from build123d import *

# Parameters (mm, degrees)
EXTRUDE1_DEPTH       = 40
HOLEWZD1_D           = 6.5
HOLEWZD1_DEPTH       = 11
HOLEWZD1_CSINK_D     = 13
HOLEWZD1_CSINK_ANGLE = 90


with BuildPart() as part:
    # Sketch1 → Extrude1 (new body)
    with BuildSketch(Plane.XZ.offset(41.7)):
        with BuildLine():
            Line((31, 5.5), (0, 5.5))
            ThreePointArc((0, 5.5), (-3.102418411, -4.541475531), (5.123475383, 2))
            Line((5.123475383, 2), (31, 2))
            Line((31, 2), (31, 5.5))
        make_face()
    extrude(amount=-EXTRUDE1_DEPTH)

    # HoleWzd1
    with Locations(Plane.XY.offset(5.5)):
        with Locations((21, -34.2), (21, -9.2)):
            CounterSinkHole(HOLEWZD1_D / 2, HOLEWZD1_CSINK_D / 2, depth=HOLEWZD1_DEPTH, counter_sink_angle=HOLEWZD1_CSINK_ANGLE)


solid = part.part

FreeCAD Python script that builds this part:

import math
import FreeCAD as App
import Part
import Sketcher
from FreeCAD import Vector

doc = App.newDocument("Part")
params = doc.addObject("Spreadsheet::Sheet", "Params")
for row, (alias, value) in enumerate([
    ("sketch1_radius", "5.5 mm"),
    ("sketch1_width", "31 mm"),
    ("sketch1_height", "3.5 mm"),
    ("pad1_length", "40 mm"),
    ("sketch2_diameter", "6.5 mm"),
    ("hole_diameter", "6.5 mm"),
    ("hole_depth", "11 mm"),
    ("hole_csink_diameter", "13 mm"),
], start=1):
    params.set(f"A{row}", alias)
    params.set(f"B{row}", "=" + value)
    params.setAlias(f"B{row}", alias)

body = doc.addObject("PartDesign::Body", "Body")

# Sketch on XZ plane
sketch1 = doc.addObject("Sketcher::SketchObject", "Sketch")
body.addObject(sketch1)
sketch1.AttachmentSupport = (doc.XZ_Plane, [""])
sketch1.MapMode = "FlatFace"
sketch1.AttachmentOffset = App.Placement(Vector(0, 0, 41.7), App.Rotation())
sketch1.addGeometry([
    Part.LineSegment(Vector(31, 5.5, 0), Vector(0, 5.5, 0)),
    Part.ArcOfCircle(Part.Circle(Vector(0, 0, 0), Vector(0, 0, 1), 5.5), math.radians(90), math.radians(381.323686)),
    Part.LineSegment(Vector(5.123475, 2, 0), Vector(31, 2, 0)),
    Part.LineSegment(Vector(31, 2, 0), Vector(31, 5.5, 0)),
], False)
sketch1.addConstraint([
    Sketcher.Constraint("Tangent", 0, 2, 1, 1),
    Sketcher.Constraint("Coincident", 1, 2, 2, 1),
    Sketcher.Constraint("Coincident", 2, 2, 3, 1),
    Sketcher.Constraint("Coincident", 3, 2, 0, 1),
    Sketcher.Constraint("Horizontal", 0),
    Sketcher.Constraint("Horizontal", 2),
    Sketcher.Constraint("Vertical", 3),
    Sketcher.Constraint("Coincident", 1, 3, -1, 1),
    Sketcher.Constraint("Radius", 1, 5.5),
    Sketcher.Constraint("DistanceX", 0, 2, 0, 1, 31.0),
    Sketcher.Constraint("DistanceY", 3, 1, 3, 2, 3.5),
])
sketch1.setExpression("Constraints[8]", "Params.sketch1_radius")
sketch1.setExpression("Constraints[9]", "Params.sketch1_width")
sketch1.setExpression("Constraints[10]", "Params.sketch1_height")
pad1 = doc.addObject("PartDesign::Pad", "Pad")
body.addObject(pad1)
pad1.Profile = sketch1
pad1.setExpression("Length", "Params.pad1_length")
pad1.Reversed = True

# Sketch on XY plane
sketch2 = doc.addObject("Sketcher::SketchObject", "Sketch001")
body.addObject(sketch2)
sketch2.AttachmentSupport = (doc.XY_Plane, [""])
sketch2.MapMode = "FlatFace"
sketch2.AttachmentOffset = App.Placement(Vector(0, 0, 5.5), App.Rotation())
sketch2.addGeometry([
    Part.Circle(Vector(21, -34.2, 0), Vector(0, 0, 1), 3.25),
    Part.Circle(Vector(21, -9.2, 0), Vector(0, 0, 1), 3.25),
], False)
sketch2.addConstraint([
    Sketcher.Constraint("Equal", 0, 1),
    Sketcher.Constraint("Vertical", 0, 3, 1, 3),
    Sketcher.Constraint("Diameter", 0, 6.5),
    Sketcher.Constraint("DistanceX", -1, 1, 0, 3, 21.0),
    Sketcher.Constraint("DistanceY", 0, 3, 1, 3, 25.0),
    Sketcher.Constraint("DistanceY", 0, 3, -1, 1, 34.2),
])
sketch2.setExpression("Constraints[2]", "Params.sketch2_diameter")
doc.recompute()
hole = doc.addObject("PartDesign::Hole", "Hole")
body.addObject(hole)
hole.Profile = sketch2
hole.ThreadType = "None"
hole.setExpression("Diameter", "Params.hole_diameter")
hole.DepthType = "Dimension"
hole.setExpression("Depth", "Params.hole_depth")
hole.DrillPoint = "Flat"
hole.HoleCutType = "Countersink"
hole.setExpression("HoleCutDiameter", "Params.hole_csink_diameter")
hole.HoleCutCountersinkAngle = 90

doc.recompute()
